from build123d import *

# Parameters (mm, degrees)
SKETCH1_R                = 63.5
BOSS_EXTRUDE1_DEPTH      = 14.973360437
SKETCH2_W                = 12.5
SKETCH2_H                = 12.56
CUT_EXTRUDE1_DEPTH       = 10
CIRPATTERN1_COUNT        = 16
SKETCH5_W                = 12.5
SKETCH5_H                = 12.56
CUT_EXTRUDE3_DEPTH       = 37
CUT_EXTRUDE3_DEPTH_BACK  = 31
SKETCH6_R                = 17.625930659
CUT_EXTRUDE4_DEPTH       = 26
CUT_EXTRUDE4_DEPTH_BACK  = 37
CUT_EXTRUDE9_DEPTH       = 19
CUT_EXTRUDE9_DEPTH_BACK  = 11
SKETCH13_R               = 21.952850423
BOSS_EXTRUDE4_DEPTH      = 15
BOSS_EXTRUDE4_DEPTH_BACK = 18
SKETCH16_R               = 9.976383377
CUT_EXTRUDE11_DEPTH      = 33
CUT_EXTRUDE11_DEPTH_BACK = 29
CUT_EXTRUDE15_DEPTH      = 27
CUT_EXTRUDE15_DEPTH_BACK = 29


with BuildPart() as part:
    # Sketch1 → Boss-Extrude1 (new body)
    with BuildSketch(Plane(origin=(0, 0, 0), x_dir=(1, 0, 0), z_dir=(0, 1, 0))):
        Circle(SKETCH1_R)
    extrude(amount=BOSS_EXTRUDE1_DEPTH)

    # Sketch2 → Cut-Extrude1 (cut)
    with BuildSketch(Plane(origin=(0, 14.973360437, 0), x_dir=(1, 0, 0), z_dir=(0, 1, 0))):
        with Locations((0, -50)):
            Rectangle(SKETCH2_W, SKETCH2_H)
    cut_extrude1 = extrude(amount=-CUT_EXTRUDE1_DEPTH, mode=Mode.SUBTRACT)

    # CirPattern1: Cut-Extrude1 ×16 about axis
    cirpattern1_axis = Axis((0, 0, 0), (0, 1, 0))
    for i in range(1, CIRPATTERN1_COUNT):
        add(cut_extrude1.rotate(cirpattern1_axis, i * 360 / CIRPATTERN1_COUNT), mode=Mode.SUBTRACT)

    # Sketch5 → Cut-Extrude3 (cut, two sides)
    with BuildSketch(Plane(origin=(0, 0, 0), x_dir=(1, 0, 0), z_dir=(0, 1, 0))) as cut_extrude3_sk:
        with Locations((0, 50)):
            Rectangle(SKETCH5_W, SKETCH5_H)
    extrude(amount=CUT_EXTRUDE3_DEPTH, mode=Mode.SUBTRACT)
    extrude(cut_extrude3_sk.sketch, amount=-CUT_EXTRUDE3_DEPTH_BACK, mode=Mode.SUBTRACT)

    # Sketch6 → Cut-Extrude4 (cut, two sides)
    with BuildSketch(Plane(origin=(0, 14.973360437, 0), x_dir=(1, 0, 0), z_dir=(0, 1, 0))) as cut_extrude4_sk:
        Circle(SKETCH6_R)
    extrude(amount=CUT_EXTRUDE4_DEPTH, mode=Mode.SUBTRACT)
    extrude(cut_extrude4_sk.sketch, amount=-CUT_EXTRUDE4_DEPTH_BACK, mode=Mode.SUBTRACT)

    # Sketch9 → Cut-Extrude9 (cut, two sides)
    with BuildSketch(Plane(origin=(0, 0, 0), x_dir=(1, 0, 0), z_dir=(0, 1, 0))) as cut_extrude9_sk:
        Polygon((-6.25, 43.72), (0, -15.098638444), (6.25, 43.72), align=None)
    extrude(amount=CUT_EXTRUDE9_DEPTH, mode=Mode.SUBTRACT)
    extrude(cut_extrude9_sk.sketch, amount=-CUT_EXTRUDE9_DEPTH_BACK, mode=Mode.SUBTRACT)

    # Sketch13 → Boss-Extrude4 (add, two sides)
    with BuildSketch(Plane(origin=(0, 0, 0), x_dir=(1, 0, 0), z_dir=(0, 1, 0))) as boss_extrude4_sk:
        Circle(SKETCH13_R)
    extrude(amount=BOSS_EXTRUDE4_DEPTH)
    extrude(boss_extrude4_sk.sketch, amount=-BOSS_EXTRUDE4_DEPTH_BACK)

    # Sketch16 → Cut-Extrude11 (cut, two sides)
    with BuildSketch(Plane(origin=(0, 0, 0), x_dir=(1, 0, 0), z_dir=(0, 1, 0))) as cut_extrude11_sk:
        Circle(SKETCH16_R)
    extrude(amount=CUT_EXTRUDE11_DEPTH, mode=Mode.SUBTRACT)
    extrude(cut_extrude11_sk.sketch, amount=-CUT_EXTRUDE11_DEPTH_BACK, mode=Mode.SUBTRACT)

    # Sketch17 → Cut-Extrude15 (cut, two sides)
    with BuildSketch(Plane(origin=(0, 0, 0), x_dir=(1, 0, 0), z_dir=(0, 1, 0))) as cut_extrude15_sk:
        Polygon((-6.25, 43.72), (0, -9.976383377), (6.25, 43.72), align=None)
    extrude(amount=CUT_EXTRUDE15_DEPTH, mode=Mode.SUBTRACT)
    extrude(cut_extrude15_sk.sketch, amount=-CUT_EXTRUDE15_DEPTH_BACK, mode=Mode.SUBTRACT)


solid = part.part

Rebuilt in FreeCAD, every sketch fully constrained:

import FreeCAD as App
import Part
import Sketcher
Q = App.Units.Quantity

doc = App.newDocument("Part")
body = doc.addObject("PartDesign::Body", "Body")

# Sketch on XZ plane
sketch1 = body.newObject("Sketcher::SketchObject", "Sketch")
sketch1.AttachmentSupport = (doc.getObject("XZ_Plane"), [""])
sketch1.MapMode = "FlatFace"
sketch1.addGeometry(Part.Circle(App.Vector(0, 0, 0), App.Vector(0, 0, 1), 64), False)
sketch1.addConstraint(Sketcher.Constraint("Coincident", 0, 3, -1, 1))
sketch1.addConstraint(Sketcher.Constraint("Diameter", 0, Q("127 mm")))
pad1 = body.newObject("PartDesign::Pad", "Pad")
pad1.Profile = sketch1
pad1.Length = 14.97336
pad1.Reversed = True

# Sketch on XZ plane
sketch2 = body.newObject("Sketcher::SketchObject", "Sketch001")
sketch2.AttachmentSupport = (doc.getObject("XZ_Plane"), [""])
sketch2.MapMode = "FlatFace"
sketch2.AttachmentOffset = App.Placement(App.Vector(0, 0, -14.97336), App.Rotation())
sketch2.addGeometry(Part.LineSegment(App.Vector(-6, 44, 0), App.Vector(-6, 56, 0)), False)
sketch2.addGeometry(Part.LineSegment(App.Vector(-6, 56, 0), App.Vector(6, 56, 0)), False)
sketch2.addGeometry(Part.LineSegment(App.Vector(6, 56, 0), App.Vector(6, 44, 0)), False)
sketch2.addGeometry(Part.LineSegment(App.Vector(6, 44, 0), App.Vector(-6, 44, 0)), False)
sketch2.addConstraint(Sketcher.Constraint("Coincident", 0, 2, 1, 1))
sketch2.addConstraint(Sketcher.Constraint("Coincident", 1, 2, 2, 1))
sketch2.addConstraint(Sketcher.Constraint("Coincident", 2, 2, 3, 1))
sketch2.addConstraint(Sketcher.Constraint("Coincident", 3, 2, 0, 1))
sketch2.addConstraint(Sketcher.Constraint("Vertical", 0))
sketch2.addConstraint(Sketcher.Constraint("Horizontal", 1))
sketch2.addConstraint(Sketcher.Constraint("Vertical", 2))
sketch2.addConstraint(Sketcher.Constraint("Horizontal", 3))
sketch2.addConstraint(Sketcher.Constraint("DistanceX", 1, 1, 1, 2, Q("12.5 mm")))
sketch2.addConstraint(Sketcher.Constraint("DistanceY", 0, 1, 0, 2, Q("12.56 mm")))
sketch2.addConstraint(Sketcher.Constraint("DistanceX", 0, 2, -1, 1, Q("6.25 mm")))
sketch2.addConstraint(Sketcher.Constraint("DistanceY", -1, 1, 0, 2, Q("56.28 mm")))
pocket1 = body.newObject("PartDesign::Pocket", "Pocket")
pocket1.Profile = sketch2
pocket1.Length = 10
pocket1.Reversed = True
doc.recompute()

polarpattern = body.newObject("PartDesign::PolarPattern", "PolarPattern")
polarpattern.Originals = [pocket1]
polarpattern.Axis = (doc.getObject("Y_Axis"), [""])
polarpattern.Angle = 360
polarpattern.Occurrences = 16
body.Tip = polarpattern

# Sketch on XZ plane
sketch3 = body.newObject("Sketcher::SketchObject", "Sketch002")
sketch3.AttachmentSupport = (doc.getObject("XZ_Plane"), [""])
sketch3.MapMode = "FlatFace"
sketch3.addGeometry(Part.LineSegment(App.Vector(-6, -56, 0), App.Vector(-6, -44, 0)), False)
sketch3.addGeometry(Part.LineSegment(App.Vector(-6, -44, 0), App.Vector(6, -44, 0)), False)
sketch3.addGeometry(Part.LineSegment(App.Vector(6, -44, 0), App.Vector(6, -56, 0)), False)
sketch3.addGeometry(Part.LineSegment(App.Vector(6, -56, 0), App.Vector(-6, -56, 0)), False)
sketch3.addConstraint(Sketcher.Constraint("Coincident", 0, 2, 1, 1))
sketch3.addConstraint(Sketcher.Constraint("Coincident", 1, 2, 2, 1))
sketch3.addConstraint(Sketcher.Constraint("Coincident", 2, 2, 3, 1))
sketch3.addConstraint(Sketcher.Constraint("Coincident", 3, 2, 0, 1))
sketch3.addConstraint(Sketcher.Constraint("Vertical", 0))
sketch3.addConstraint(Sketcher.Constraint("Horizontal", 1))
sketch3.addConstraint(Sketcher.Constraint("Vertical", 2))
sketch3.addConstraint(Sketcher.Constraint("Horizontal", 3))
sketch3.addConstraint(Sketcher.Constraint("DistanceX", 1, 1, 1, 2, Q("12.5 mm")))
sketch3.addConstraint(Sketcher.Constraint("DistanceY", 0, 1, 0, 2, Q("12.56 mm")))
sketch3.addConstraint(Sketcher.Constraint("DistanceX", 0, 2, -1, 1, Q("6.25 mm")))
sketch3.addConstraint(Sketcher.Constraint("DistanceY", 0, 2, -1, 1, Q("43.72 mm")))
pocket2 = body.newObject("PartDesign::Pocket", "Pocket001")
pocket2.Profile = sketch3
pocket2.Type = "ThroughAll"
pocket2.Midplane = True

# Sketch on XZ plane
sketch4 = body.newObject("Sketcher::SketchObject", "Sketch003")
sketch4.AttachmentSupport = (doc.getObject("XZ_Plane"), [""])
sketch4.MapMode = "FlatFace"
sketch4.AttachmentOffset = App.Placement(App.Vector(0, 0, -14.97336), App.Rotation())
sketch4.addGeometry(Part.Circle(App.Vector(0, 0, 0), App.Vector(0, 0, 1), 18), False)
sketch4.addConstraint(Sketcher.Constraint("Coincident", 0, 3, -1, 1))
sketch4.addConstraint(Sketcher.Constraint("Diameter", 0, Q("35.251861 mm")))
pocket3 = body.newObject("PartDesign::Pocket", "Pocket002")
pocket3.Profile = sketch4
pocket3.Type = "ThroughAll"
pocket3.Midplane = True

# Sketch on XZ plane
sketch5 = body.newObject("Sketcher::SketchObject", "Sketch004")
sketch5.AttachmentSupport = (doc.getObject("XZ_Plane"), [""])
sketch5.MapMode = "FlatFace"
sketch5.addGeometry(Part.LineSegment(App.Vector(-6, -44, 0), App.Vector(0, 15, 0)), False)
sketch5.addGeometry(Part.LineSegment(App.Vector(0, 15, 0), App.Vector(6, -44, 0)), False)
sketch5.addGeometry(Part.LineSegment(App.Vector(6, -44, 0), App.Vector(-6, -44, 0)), False)
sketch5.addConstraint(Sketcher.Constraint("Coincident", 0, 2, 1, 1))
sketch5.addConstraint(Sketcher.Constraint("Coincident", 1, 2, 2, 1))
sketch5.addConstraint(Sketcher.Constraint("Coincident", 2, 2, 0, 1))
sketch5.addConstraint(Sketcher.Constraint("Horizontal", 2))
sketch5.addConstraint(Sketcher.Constraint("PointOnObject", 0, 2, -2))
sketch5.addConstraint(Sketcher.Constraint("Equal", 0, 1))
sketch5.addConstraint(Sketcher.Constraint("DistanceX", 2, 2, 2, 1, Q("12.5 mm")))
sketch5.addConstraint(Sketcher.Constraint("DistanceY", 1, 2, -1, 1, Q("43.72 mm")))
sketch5.addConstraint(Sketcher.Constraint("DistanceY", -1, 1, 0, 2, Q("15.098638 mm")))
pocket4 = body.newObject("PartDesign::Pocket", "Pocket003")
pocket4.Profile = sketch5
pocket4.Type = "ThroughAll"
pocket4.Midplane = True

# Sketch on XZ plane
sketch6 = body.newObject("Sketcher::SketchObject", "Sketch005")
sketch6.AttachmentSupport = (doc.getObject("XZ_Plane"), [""])
sketch6.MapMode = "FlatFace"
sketch6.addGeometry(Part.Circle(App.Vector(0, 0, 0), App.Vector(0, 0, 1), 22), False)
sketch6.addConstraint(Sketcher.Constraint("Coincident", 0, 3, -1, 1))
sketch6.addConstraint(Sketcher.Constraint("Diameter", 0, Q("43.905701 mm")))
pad2 = body.newObject("PartDesign::Pad", "Pad001")
pad2.Profile = sketch6
pad2.Type = "TwoLengths"
pad2.Length = 15
pad2.Length2 = 18
pad2.Reversed = True

# Sketch on XZ plane
sketch7 = body.newObject("Sketcher::SketchObject", "Sketch006")
sketch7.AttachmentSupport = (doc.getObject("XZ_Plane"), [""])
sketch7.MapMode = "FlatFace"
sketch7.addGeometry(Part.Circle(App.Vector(0, 0, 0), App.Vector(0, 0, 1), 10), False)
sketch7.addConstraint(Sketcher.Constraint("Coincident", 0, 3, -1, 1))
sketch7.addConstraint(Sketcher.Constraint("Diameter", 0, Q("19.952767 mm")))
pocket5 = body.newObject("PartDesign::Pocket", "Pocket004")
pocket5.Profile = sketch7
pocket5.Type = "ThroughAll"
pocket5.Midplane = True

# Sketch on XZ plane
sketch8 = body.newObject("Sketcher::SketchObject", "Sketch007")
sketch8.AttachmentSupport = (doc.getObject("XZ_Plane"), [""])
sketch8.MapMode = "FlatFace"
sketch8.addGeometry(Part.LineSegment(App.Vector(-6, -44, 0), App.Vector(0, 10, 0)), False)
sketch8.addGeometry(Part.LineSegment(App.Vector(0, 10, 0), App.Vector(6, -44, 0)), False)
sketch8.addGeometry(Part.LineSegment(App.Vector(6, -44, 0), App.Vector(-6, -44, 0)), False)
sketch8.addConstraint(Sketcher.Constraint("Coincident", 0, 2, 1, 1))
sketch8.addConstraint(Sketcher.Constraint("Coincident", 1, 2, 2, 1))
sketch8.addConstraint(Sketcher.Constraint("Coincident", 2, 2, 0, 1))
sketch8.addConstraint(Sketcher.Constraint("Horizontal", 2))
sketch8.addConstraint(Sketcher.Constraint("PointOnObject", 0, 2, -2))
sketch8.addConstraint(Sketcher.Constraint("Equal", 0, 1))
sketch8.addConstraint(Sketcher.Constraint("DistanceX", 2, 2, 2, 1, Q("12.5 mm")))
sketch8.addConstraint(Sketcher.Constraint("DistanceY", 1, 2, -1, 1, Q("43.72 mm")))
sketch8.addConstraint(Sketcher.Constraint("Distance", 0, Q("54.058895 mm")))
pocket6 = body.newObject("PartDesign::Pocket", "Pocket005")
pocket6.Profile = sketch8
pocket6.Type = "ThroughAll"
pocket6.Midplane = True

doc.recompute()
